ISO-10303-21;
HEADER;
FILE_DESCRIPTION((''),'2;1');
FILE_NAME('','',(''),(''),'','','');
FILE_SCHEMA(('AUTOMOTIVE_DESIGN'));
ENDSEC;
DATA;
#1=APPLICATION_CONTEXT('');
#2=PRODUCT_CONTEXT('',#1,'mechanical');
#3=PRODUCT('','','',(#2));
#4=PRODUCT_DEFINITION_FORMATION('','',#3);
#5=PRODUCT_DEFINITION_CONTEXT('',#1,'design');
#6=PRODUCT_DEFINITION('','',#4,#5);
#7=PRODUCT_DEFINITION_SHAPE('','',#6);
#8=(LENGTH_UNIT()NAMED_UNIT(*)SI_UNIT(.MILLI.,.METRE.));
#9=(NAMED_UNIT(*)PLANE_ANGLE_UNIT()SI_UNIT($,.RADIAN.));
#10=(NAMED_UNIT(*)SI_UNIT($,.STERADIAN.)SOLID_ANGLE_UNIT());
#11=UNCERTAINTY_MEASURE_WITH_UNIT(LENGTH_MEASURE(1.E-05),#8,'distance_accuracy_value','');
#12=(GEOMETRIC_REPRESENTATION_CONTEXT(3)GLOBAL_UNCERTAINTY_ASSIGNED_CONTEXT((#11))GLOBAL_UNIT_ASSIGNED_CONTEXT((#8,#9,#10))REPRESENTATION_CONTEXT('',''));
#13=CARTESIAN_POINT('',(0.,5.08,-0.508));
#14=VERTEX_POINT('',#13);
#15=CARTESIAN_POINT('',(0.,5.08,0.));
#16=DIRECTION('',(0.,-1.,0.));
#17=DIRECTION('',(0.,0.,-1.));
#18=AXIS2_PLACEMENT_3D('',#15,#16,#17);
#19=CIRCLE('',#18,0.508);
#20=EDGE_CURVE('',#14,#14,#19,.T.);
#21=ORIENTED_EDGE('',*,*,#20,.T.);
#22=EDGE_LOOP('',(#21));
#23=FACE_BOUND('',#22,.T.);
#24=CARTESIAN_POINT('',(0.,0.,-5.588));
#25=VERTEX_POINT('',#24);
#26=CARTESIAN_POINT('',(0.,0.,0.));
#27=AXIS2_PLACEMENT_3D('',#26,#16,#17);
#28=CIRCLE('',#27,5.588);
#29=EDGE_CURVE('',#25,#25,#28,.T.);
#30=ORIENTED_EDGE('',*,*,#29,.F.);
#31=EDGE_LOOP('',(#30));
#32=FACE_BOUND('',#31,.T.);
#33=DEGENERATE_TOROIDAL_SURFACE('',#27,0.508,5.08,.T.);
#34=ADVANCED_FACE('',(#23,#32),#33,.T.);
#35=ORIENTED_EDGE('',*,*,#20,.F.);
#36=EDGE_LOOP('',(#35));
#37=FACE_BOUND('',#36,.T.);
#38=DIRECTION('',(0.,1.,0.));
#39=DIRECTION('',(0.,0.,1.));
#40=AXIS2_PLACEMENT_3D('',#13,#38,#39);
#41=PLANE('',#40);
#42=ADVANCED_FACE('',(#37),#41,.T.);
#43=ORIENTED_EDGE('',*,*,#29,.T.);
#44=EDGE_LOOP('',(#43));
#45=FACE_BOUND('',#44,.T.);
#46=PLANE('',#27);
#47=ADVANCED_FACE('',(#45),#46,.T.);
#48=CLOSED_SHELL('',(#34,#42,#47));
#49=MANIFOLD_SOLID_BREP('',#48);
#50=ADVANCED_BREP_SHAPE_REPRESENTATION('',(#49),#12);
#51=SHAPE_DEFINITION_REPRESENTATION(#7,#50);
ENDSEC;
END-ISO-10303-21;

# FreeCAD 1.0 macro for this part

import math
import FreeCAD as App
import Part
import Sketcher
Q = App.Units.Quantity

doc = App.newDocument("Part")
body = doc.addObject("PartDesign::Body", "Body")

# Sketch on YZ plane
sketch1 = body.newObject("Sketcher::SketchObject", "Sketch")
sketch1.AttachmentSupport = (doc.getObject("YZ_Plane"), [""])
sketch1.MapMode = "FlatFace"
sketch1.addGeometry([
    Part.LineSegment(App.Vector(0, 0, 0), App.Vector(0, -5.6, 0)),
    Part.ArcOfCircle(Part.Circle(App.Vector(0, -0.5, 0), App.Vector(0, 0, 1), 5.1), math.radians(-90), math.radians(0)),
    Part.LineSegment(App.Vector(5.1, -0.5, 0), App.Vector(5.1, 0, 0)),
    Part.LineSegment(App.Vector(5.1, 0, 0), App.Vector(0, 0, 0)),
], False)
sketch1.addConstraint([
    Sketcher.Constraint("Coincident", 0, 2, 1, 1),
    Sketcher.Constraint("Tangent", 1, 2, 2, 1),
    Sketcher.Constraint("Coincident", 2, 2, 3, 1),
    Sketcher.Constraint("Coincident", 3, 2, 0, 1),
    Sketcher.Constraint("Vertical", 0),
    Sketcher.Constraint("Vertical", 2),
    Sketcher.Constraint("Horizontal", 3),
    Sketcher.Constraint("Coincident", 3, 2, -1, 1),
    Sketcher.Constraint("PointOnObject", 1, 3, -2),
    Sketcher.Constraint("Radius", 1, Q("0.2 in")),
    Sketcher.Constraint("DistanceY", 0, 2, 0, 1, Q("0.22 in")),
])
revolution = body.newObject("PartDesign::Revolution", "Revolution")
revolution.Profile = sketch1
revolution.ReferenceAxis = (sketch1, ["H_Axis"])
revolution.Angle = 360

doc.recompute()
